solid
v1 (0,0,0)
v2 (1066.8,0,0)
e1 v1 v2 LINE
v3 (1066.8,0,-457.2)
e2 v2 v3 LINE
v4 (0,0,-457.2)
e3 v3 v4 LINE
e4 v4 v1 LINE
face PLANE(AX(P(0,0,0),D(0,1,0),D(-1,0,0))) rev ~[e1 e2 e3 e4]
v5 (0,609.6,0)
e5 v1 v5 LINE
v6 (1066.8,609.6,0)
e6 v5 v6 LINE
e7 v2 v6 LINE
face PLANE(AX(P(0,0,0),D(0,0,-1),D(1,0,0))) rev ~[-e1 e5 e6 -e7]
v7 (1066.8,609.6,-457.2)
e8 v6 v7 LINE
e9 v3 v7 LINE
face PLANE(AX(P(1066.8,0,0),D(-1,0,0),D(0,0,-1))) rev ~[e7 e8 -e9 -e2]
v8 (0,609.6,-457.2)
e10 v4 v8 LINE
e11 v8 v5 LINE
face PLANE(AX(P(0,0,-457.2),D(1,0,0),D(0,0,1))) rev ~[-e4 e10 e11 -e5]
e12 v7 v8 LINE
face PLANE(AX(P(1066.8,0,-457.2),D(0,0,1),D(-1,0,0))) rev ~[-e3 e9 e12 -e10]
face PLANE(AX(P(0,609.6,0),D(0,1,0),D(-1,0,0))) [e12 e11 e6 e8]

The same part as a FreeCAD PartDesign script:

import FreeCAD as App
import Part
import Sketcher
Q = App.Units.Quantity


def add_polygon(sketch, points):
    """Adds a closed chain of lines whose ends are joined by coincident constraints."""
    first, n = sketch.GeometryCount, len(points)
    for a, b in zip(points, points[1:] + points[:1]):
        sketch.addGeometry(Part.LineSegment(App.Vector(*a, 0), App.Vector(*b, 0)), False)
    for i in range(n):
        sketch.addConstraint(Sketcher.Constraint("Coincident", first + i, 2, first + (i + 1) % n, 1))

doc = App.newDocument("Part")
body = doc.addObject("PartDesign::Body", "Body")

sketch1 = body.newObject("Sketcher::SketchObject", "Sketch")
sketch1.AttachmentSupport = (doc.getObject("XZ_Plane"), [""])
sketch1.MapMode = "FlatFace"
add_polygon(sketch1, [(0, -457), (0, 0), (1067, 0), (1067, -457)])
sketch1.addConstraint([
    Sketcher.Constraint("Vertical", 0),
    Sketcher.Constraint("Horizontal", 1),
    Sketcher.Constraint("Vertical", 2),
    Sketcher.Constraint("Horizontal", 3),
    Sketcher.Constraint("Coincident", 0, 2, -1, 1),
    Sketcher.Constraint("DistanceX", 1, 1, 1, 2, Q("42 in")),
    Sketcher.Constraint("DistanceY", 0, 1, 0, 2, Q("18 in")),
])
pad1 = body.newObject("PartDesign::Pad", "Pad")
pad1.Profile = sketch1
pad1.Length = Q("24 in")
pad1.Reversed = True

doc.recompute()
